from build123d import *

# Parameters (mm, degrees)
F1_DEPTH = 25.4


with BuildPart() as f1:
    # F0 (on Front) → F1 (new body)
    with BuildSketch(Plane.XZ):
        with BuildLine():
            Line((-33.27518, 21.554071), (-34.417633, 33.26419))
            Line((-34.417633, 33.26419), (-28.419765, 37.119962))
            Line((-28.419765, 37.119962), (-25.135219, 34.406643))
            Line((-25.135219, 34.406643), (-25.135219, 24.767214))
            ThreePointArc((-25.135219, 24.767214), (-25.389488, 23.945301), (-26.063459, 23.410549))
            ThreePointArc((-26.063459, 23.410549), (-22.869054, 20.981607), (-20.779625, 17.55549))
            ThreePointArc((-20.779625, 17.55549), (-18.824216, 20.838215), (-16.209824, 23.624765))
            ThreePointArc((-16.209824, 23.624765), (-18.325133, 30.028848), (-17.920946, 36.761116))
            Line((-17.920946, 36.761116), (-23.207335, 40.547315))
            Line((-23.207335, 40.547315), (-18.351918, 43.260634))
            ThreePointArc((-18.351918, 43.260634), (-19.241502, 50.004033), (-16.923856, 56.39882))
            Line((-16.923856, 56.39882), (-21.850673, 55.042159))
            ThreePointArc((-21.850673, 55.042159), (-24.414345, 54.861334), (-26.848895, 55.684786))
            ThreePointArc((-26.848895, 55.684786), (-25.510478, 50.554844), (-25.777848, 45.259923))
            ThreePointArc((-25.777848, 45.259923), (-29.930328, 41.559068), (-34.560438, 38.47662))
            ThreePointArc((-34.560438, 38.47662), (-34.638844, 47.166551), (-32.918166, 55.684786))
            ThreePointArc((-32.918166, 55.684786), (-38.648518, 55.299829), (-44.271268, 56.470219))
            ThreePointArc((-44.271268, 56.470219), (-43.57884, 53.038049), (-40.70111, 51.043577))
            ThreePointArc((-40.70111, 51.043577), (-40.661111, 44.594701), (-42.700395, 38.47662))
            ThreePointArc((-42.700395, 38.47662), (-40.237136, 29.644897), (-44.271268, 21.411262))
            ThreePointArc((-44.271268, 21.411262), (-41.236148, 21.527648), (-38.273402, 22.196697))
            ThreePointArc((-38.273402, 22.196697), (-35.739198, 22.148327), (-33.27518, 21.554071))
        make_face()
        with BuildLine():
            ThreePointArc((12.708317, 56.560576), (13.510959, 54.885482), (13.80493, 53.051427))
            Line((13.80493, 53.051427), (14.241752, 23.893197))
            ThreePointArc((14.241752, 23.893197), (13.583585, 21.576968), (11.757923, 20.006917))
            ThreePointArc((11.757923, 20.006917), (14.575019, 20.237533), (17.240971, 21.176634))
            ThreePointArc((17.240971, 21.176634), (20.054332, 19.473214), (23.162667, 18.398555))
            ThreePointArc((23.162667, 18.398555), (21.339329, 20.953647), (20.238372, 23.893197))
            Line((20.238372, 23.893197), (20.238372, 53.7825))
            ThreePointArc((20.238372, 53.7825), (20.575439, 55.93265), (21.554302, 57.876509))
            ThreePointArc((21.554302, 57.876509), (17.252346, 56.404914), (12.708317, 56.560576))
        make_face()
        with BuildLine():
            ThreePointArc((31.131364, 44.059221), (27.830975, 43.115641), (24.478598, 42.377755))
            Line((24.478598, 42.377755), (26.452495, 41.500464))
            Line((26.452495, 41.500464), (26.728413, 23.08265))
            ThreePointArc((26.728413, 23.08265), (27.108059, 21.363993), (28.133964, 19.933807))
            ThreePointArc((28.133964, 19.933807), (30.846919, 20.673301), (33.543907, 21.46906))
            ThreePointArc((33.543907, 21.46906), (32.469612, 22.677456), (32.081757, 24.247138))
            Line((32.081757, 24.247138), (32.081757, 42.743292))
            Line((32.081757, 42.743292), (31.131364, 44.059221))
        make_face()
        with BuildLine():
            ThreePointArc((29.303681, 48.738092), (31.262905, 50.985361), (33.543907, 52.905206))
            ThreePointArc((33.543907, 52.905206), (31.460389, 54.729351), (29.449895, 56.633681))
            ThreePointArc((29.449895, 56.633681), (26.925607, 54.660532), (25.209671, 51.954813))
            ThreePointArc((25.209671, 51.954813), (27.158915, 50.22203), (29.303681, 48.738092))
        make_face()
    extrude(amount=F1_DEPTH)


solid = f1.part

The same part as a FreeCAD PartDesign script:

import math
import FreeCAD as App
import Part
import Sketcher

V = App.Vector
Q = App.Units.Quantity

doc = App.newDocument("Part")
body = doc.addObject("PartDesign::Body", "Body")
body.AllowCompound = True

# Sketch on XZ plane
sketch1 = body.newObject("Sketcher::SketchObject", "Sketch")
sketch1.AttachmentSupport = (doc.getObject("XZ_Plane"), [""])
sketch1.MapMode = "FlatFace"
sketch1.addGeometry(Part.LineSegment(V(-33.3, 21.6, 0), V(-34.4, 33.3, 0)), False)
sketch1.addGeometry(Part.LineSegment(V(-34.4, 33.3, 0), V(-28.4, 37.1, 0)), False)
sketch1.addGeometry(Part.LineSegment(V(-28.4, 37.1, 0), V(-25.1, 34.4, 0)), False)
sketch1.addGeometry(Part.LineSegment(V(-25.1, 34.4, 0), V(-25.1, 24.8, 0)), False)
sketch1.addGeometry(Part.ArcOfCircle(Part.Circle(V(-26.6, 24.8, 0), V(0, 0, 1), 1.5), math.radians(-69), math.radians(0)), False)
sketch1.addGeometry(Part.ArcOfCircle(Part.Circle(V(-30.9, 13.7, 0), V(0, 0, 1), 10.8), math.radians(21), math.radians(63)), False)
sketch1.addGeometry(Part.ArcOfCircle(Part.Circle(V(-4.7, 10.2, 0), V(0, 0, 1), 17.7), math.radians(131), math.radians(155)), False)
sketch1.addGeometry(Part.ArcOfCircle(Part.Circle(V(-0.6, 32.3, 0), V(0, 0, 1), 17.9), math.radians(166), math.radians(209)), False)
sketch1.addGeometry(Part.LineSegment(V(-17.9, 36.8, 0), V(-23.2, 40.5, 0)), False)
sketch1.addGeometry(Part.LineSegment(V(-23.2, 40.5, 0), V(-18.4, 43.3, 0)), False)
sketch1.addGeometry(Part.ArcOfCircle(Part.Circle(V(-5, 48.5, 0), V(0, 0, 1), 14.3), math.radians(146), math.radians(201)), False)
sketch1.addGeometry(Part.LineSegment(V(-16.9, 56.4, 0), V(-21.9, 55, 0)), False)
sketch1.addGeometry(Part.ArcOfCircle(Part.Circle(V(-23.6, 61.3, 0), V(0, 0, 1), 6.5), math.radians(-120), math.radians(-75)), False)
sketch1.addGeometry(Part.ArcOfCircle(Part.Circle(V(-42.8, 48.8, 0), V(0, 0, 1), 17.4), math.radians(-12), math.radians(23)), False)
sketch1.addGeometry(Part.ArcOfCircle(Part.Circle(V(-54.1, 72.9, 0), V(0, 0, 1), 39.6), math.radians(-60.37), math.radians(-44.26)), False)
sketch1.addGeometry(Part.ArcOfCircle(Part.Circle(V(7, 43.2, 0), V(0, 0, 1), 41.8), math.radians(163), math.radians(186)), False)
sketch1.addGeometry(Part.ArcOfCircle(Part.Circle(V(-37.2, 76.4, 0), V(0, 0, 1), 21.2), math.radians(-110), math.radians(-78)), False)
sketch1.addGeometry(Part.ArcOfCircle(Part.Circle(V(-39.7, 55.6, 0), V(0, 0, 1), 4.7), math.radians(169), math.radians(257)), False)
sketch1.addGeometry(Part.ArcOfCircle(Part.Circle(V(-60.2, 47.7, 0), V(0, 0, 1), 19.8), math.radians(-28), math.radians(10)), False)
sketch1.addGeometry(Part.ArcOfCircle(Part.Circle(V(-53.1, 30.8, 0), V(0, 0, 1), 12.9), math.radians(-47), math.radians(36)), False)
sketch1.addGeometry(Part.ArcOfCircle(Part.Circle(V(-43.4, 37.9, 0), V(0, 0, 1), 16.6), math.radians(-93), math.radians(-72)), False)
sketch1.addGeometry(Part.ArcOfCircle(Part.Circle(V(-37.2, 10.6, 0), V(0, 0, 1), 11.7), math.radians(70), math.radians(95)), False)
sketch1.addGeometry(Part.ArcOfCircle(Part.Circle(V(7.3, 53, 0), V(0, 0, 1), 6.5), math.radians(1), math.radians(34)), False)
sketch1.addGeometry(Part.LineSegment(V(13.8, 53.1, 0), V(14.2, 23.9, 0)), False)
sketch1.addGeometry(Part.ArcOfCircle(Part.Circle(V(10.1, 23.8, 0), V(0, 0, 1), 4.2), math.radians(-66), math.radians(1)), False)
sketch1.addGeometry(Part.ArcOfCircle(Part.Circle(V(12.3, 31, 0), V(0, 0, 1), 11), math.radians(-93), math.radians(-63)), False)
sketch1.addGeometry(Part.ArcOfCircle(Part.Circle(V(26.7, 33.6, 0), V(0, 0, 1), 15.6), math.radians(-127), math.radians(-103)), False)
sketch1.addGeometry(Part.ArcOfCircle(Part.Circle(V(32, 26.6, 0), V(0, 0, 1), 12), math.radians(-167), math.radians(-137)), False)
sketch1.addGeometry(Part.LineSegment(V(20.2, 23.9, 0), V(20.2, 53.8, 0)), False)
sketch1.addGeometry(Part.ArcOfCircle(Part.Circle(V(27.3, 53.8, 0), V(0, 0, 1), 7), math.radians(144), math.radians(180)), False)
sketch1.addGeometry(Part.ArcOfCircle(Part.Circle(V(15.4, 68.8, 0), V(0, 0, 1), 12.6), math.radians(-102), math.radians(-61)), False)
sketch1.addGeometry(Part.ArcOfCircle(Part.Circle(V(14.2, 97, 0), V(0, 0, 1), 55.5), math.radians(-79.36), math.radians(-72.27)), False)
sketch1.addGeometry(Part.LineSegment(V(24.5, 42.4, 0), V(26.5, 41.5, 0)), False)
sketch1.addGeometry(Part.LineSegment(V(26.5, 41.5, 0), V(26.7, 23.1, 0)), False)
sketch1.addGeometry(Part.ArcOfCircle(Part.Circle(V(31.1, 23.1, 0), V(0, 0, 1), 4.4), math.radians(-179), math.radians(-133)), False)
sketch1.addGeometry(Part.ArcOfCircle(Part.Circle(V(-6.1, 150.7, 0), V(0, 0, 1), 135.2), math.radians(-75.35), math.radians(-72.97)), False)
sketch1.addGeometry(Part.ArcOfCircle(Part.Circle(V(35.5, 24.2, 0), V(0, 0, 1), 3.4), math.radians(180), math.radians(236)), False)
sketch1.addGeometry(Part.LineSegment(V(32.1, 24.2, 0), V(32.1, 42.7, 0)), False)
sketch1.addGeometry(Part.LineSegment(V(32.1, 42.7, 0), V(31.1, 44.1, 0)), False)
sketch1.addGeometry(Part.ArcOfCircle(Part.Circle(V(44.8, 37.2, 0), V(0, 0, 1), 19.4), math.radians(125.67), math.radians(143.33)), False)
sketch1.addGeometry(Part.ArcOfCircle(Part.Circle(V(79.1, 107, 0), V(0, 0, 1), 70.7), math.radians(-134.57), math.radians(-130.08)), False)
sketch1.addGeometry(Part.ArcOfCircle(Part.Circle(V(33.9, 48.3, 0), V(0, 0, 1), 9.4), math.radians(118), math.radians(157)), False)
sketch1.addGeometry(Part.ArcOfCircle(Part.Circle(V(40.4, 67.1, 0), V(0, 0, 1), 21.5), math.radians(-135.11), math.radians(-121.2)), False)
sketch1.addConstraint(Sketcher.Constraint("Coincident", 0, 2, 1, 1))
sketch1.addConstraint(Sketcher.Constraint("Coincident", 1, 2, 2, 1))
sketch1.addConstraint(Sketcher.Constraint("Coincident", 2, 2, 3, 1))
sketch1.addConstraint(Sketcher.Constraint("Tangent", 3, 2, 4, 2))
sketch1.addConstraint(Sketcher.Constraint("Coincident", 4, 1, 5, 2))
sketch1.addConstraint(Sketcher.Constraint("Coincident", 5, 1, 6, 2))
sketch1.addConstraint(Sketcher.Constraint("Coincident", 6, 1, 7, 2))
sketch1.addConstraint(Sketcher.Constraint("Coincident", 7, 1, 8, 1))
sketch1.addConstraint(Sketcher.Constraint("Coincident", 8, 2, 9, 1))
sketch1.addConstraint(Sketcher.Constraint("Coincident", 9, 2, 10, 2))
sketch1.addConstraint(Sketcher.Constraint("Coincident", 10, 1, 11, 1))
sketch1.addConstraint(Sketcher.Constraint("Tangent", 11, 2, 12, 2))
sketch1.addConstraint(Sketcher.Constraint("Coincident", 12, 1, 13, 2))
sketch1.addConstraint(Sketcher.Constraint("Coincident", 13, 1, 14, 2))
sketch1.addConstraint(Sketcher.Constraint("Coincident", 14, 1, 15, 2))
sketch1.addConstraint(Sketcher.Constraint("Coincident", 15, 1, 16, 2))
sketch1.addConstraint(Sketcher.Constraint("Coincident", 16, 1, 17, 1))
sketch1.addConstraint(Sketcher.Constraint("Coincident", 17, 2, 18, 2))
sketch1.addConstraint(Sketcher.Constraint("Coincident", 18, 1, 19, 2))
sketch1.addConstraint(Sketcher.Constraint("Coincident", 19, 1, 20, 1))
sketch1.addConstraint(Sketcher.Constraint("Coincident", 20, 2, 21, 2))
sketch1.addConstraint(Sketcher.Constraint("Coincident", 21, 1, 0, 1))
sketch1.addConstraint(Sketcher.Constraint("Tangent", 22, 1, 23, 1))
sketch1.addConstraint(Sketcher.Constraint("Tangent", 23, 2, 24, 2))
sketch1.addConstraint(Sketcher.Constraint("Coincident", 24, 1, 25, 1))
sketch1.addConstraint(Sketcher.Constraint("Coincident", 25, 2, 26, 1))
sketch1.addConstraint(Sketcher.Constraint("Coincident", 26, 2, 27, 2))
sketch1.addConstraint(Sketcher.Constraint("Coincident", 27, 1, 28, 1))
sketch1.addConstraint(Sketcher.Constraint("Tangent", 28, 2, 29, 2))
sketch1.addConstraint(Sketcher.Constraint("Coincident", 29, 1, 30, 2))
sketch1.addConstraint(Sketcher.Constraint("Coincident", 30, 1, 22, 2))
sketch1.addConstraint(Sketcher.Constraint("Coincident", 31, 1, 32, 1))
sketch1.addConstraint(Sketcher.Constraint("Coincident", 32, 2, 33, 1))
sketch1.addConstraint(Sketcher.Constraint("Tangent", 33, 2, 34, 1))
sketch1.addConstraint(Sketcher.Constraint("Coincident", 34, 2, 35, 1))
sketch1.addConstraint(Sketcher.Constraint("Coincident", 35, 2, 36, 2))
sketch1.addConstraint(Sketcher.Constraint("Tangent", 36, 1, 37, 1))
sketch1.addConstraint(Sketcher.Constraint("Coincident", 37, 2, 38, 1))
sketch1.addConstraint(Sketcher.Constraint("Coincident", 38, 2, 31, 2))
sketch1.addConstraint(Sketcher.Constraint("Coincident", 39, 1, 40, 2))
sketch1.addConstraint(Sketcher.Constraint("Coincident", 40, 1, 41, 1))
sketch1.addConstraint(Sketcher.Constraint("Coincident", 41, 2, 42, 1))
sketch1.addConstraint(Sketcher.Constraint("Coincident", 42, 2, 39, 2))
sketch1.addConstraint(Sketcher.Constraint("Vertical", 3))
sketch1.addConstraint(Sketcher.Constraint("Vertical", 28))
sketch1.addConstraint(Sketcher.Constraint("Vertical", 37))
sketch1.addConstraint(Sketcher.Constraint("Parallel", 23, 33))
sketch1.addConstraint(Sketcher.Constraint("Horizontal", 12, 1, 15, 1))
sketch1.addConstraint(Sketcher.Constraint("Horizontal", 14, 1, 18, 1))
sketch1.addConstraint(Sketcher.Constraint("Horizontal", 23, 2, 27, 1))
sketch1.addConstraint(Sketcher.Constraint("Vertical", 16, 1, 19, 1))
sketch1.addConstraint(Sketcher.Constraint("Vertical", 35, 2, 39, 1))
sketch1.addConstraint(Sketcher.Constraint("Radius", 16, 21.156999))
sketch1.addConstraint(Sketcher.Constraint("Radius", 35, 135.192702))
sketch1.addConstraint(Sketcher.Constraint("Radius", 42, 21.493698))
sketch1.addConstraint(Sketcher.Constraint("Distance", 8, Q("0.256 in")))
sketch1.addConstraint(Sketcher.Constraint("Radius", 7, 17.90269))
sketch1.addConstraint(Sketcher.Constraint("Radius", 22, 6.47397))
sketch1.addConstraint(Sketcher.Constraint("Radius", 24, 4.184609))
sketch1.addConstraint(Sketcher.Constraint("Radius", 25, 11.028308))
sketch1.addConstraint(Sketcher.Constraint("Radius", 27, 12.040642))
sketch1.addConstraint(Sketcher.Constraint("Radius", 30, 12.56557))
sketch1.addConstraint(Sketcher.Constraint("Radius", 34, 4.377321))
sketch1.addConstraint(Sketcher.Constraint("Radius", 36, 3.37024))
sketch1.addConstraint(Sketcher.Constraint("Radius", 4, 1.455535))
sketch1.addConstraint(Sketcher.Constraint("Radius", 5, 10.819675))
sketch1.addConstraint(Sketcher.Constraint("Radius", 6, 17.699156))
sketch1.addConstraint(Sketcher.Constraint("Radius", 10, 14.340687))
sketch1.addConstraint(Sketcher.Constraint("Radius", 12, 6.523283))
sketch1.addConstraint(Sketcher.Constraint("Radius", 13, 17.412327))
sketch1.addConstraint(Sketcher.Constraint("Radius", 14, 39.595762))
sketch1.addConstraint(Sketcher.Constraint("Radius", 15, 41.787636))
sketch1.addConstraint(Sketcher.Constraint("Radius", 17, 4.686577))
sketch1.addConstraint(Sketcher.Constraint("Radius", 18, 19.753477))
sketch1.addConstraint(Sketcher.Constraint("Radius", 19, 12.884103))
sketch1.addConstraint(Sketcher.Constraint("Radius", 20, 16.551484))
sketch1.addConstraint(Sketcher.Constraint("Radius", 21, 11.672904))
sketch1.addConstraint(Sketcher.Constraint("Radius", 26, 15.574395))
sketch1.addConstraint(Sketcher.Constraint("Radius", 29, 7.026426))
sketch1.addConstraint(Sketcher.Constraint("Radius", 31, 55.537284))
sketch1.addConstraint(Sketcher.Constraint("Radius", 39, 19.362466))
sketch1.addConstraint(Sketcher.Constraint("Radius", 40, 70.708304))
sketch1.addConstraint(Sketcher.Constraint("Radius", 41, 9.409867))
sketch1.addConstraint(Sketcher.Constraint("Distance", 23, 29.161502))
sketch1.addConstraint(Sketcher.Constraint("DistanceY", 3, 2, 3, 1, 9.639429))
sketch1.addConstraint(Sketcher.Constraint("DistanceY", -1, 1, 14, 3, 72.8962))
sketch1.addConstraint(Sketcher.Constraint("DistanceX", 19, 3, -1, 1, 53.066998))
sketch1.addConstraint(Sketcher.Constraint("DistanceY", -1, 1, 26, 3, 33.573098))
sketch1.addConstraint(Sketcher.Constraint("DistanceY", -1, 1, 29, 3, 53.782502))
sketch1.addConstraint(Sketcher.Constraint("DistanceY", -1, 1, 40, 3, 107.006998))
sketch1.addConstraint(Sketcher.Constraint("DistanceX", 20, 2, -1, 1, 38.273402))
sketch1.addConstraint(Sketcher.Constraint("DistanceX", -1, 1, 31, 1, 24.478598))
sketch1.addConstraint(Sketcher.Constraint("Distance", 2, 4.260322))
sketch1.addConstraint(Sketcher.Constraint("Distance", 9, 5.56212))
sketch1.addConstraint(Sketcher.Constraint("Distance", 11, 5.110191))
sketch1.addConstraint(Sketcher.Constraint("Distance", 32, 2.160071))
sketch1.addConstraint(Sketcher.Constraint("Distance", 33, 18.419881))
sketch1.addConstraint(Sketcher.Constraint("DistanceY", 28, 1, 28, 2, 29.889303))
sketch1.addConstraint(Sketcher.Constraint("DistanceY", 37, 1, 37, 2, 18.496154))
sketch1.addConstraint(Sketcher.Constraint("DistanceY", -1, 1, 5, 3, 13.732808))
sketch1.addConstraint(Sketcher.Constraint("DistanceX", 6, 3, -1, 1, 4.684871))
sketch1.addConstraint(Sketcher.Constraint("DistanceY", -1, 1, 7, 3, 32.341291))
sketch1.addConstraint(Sketcher.Constraint("DistanceY", -1, 1, 10, 3, 48.454392))
sketch1.addConstraint(Sketcher.Constraint("DistanceY", -1, 1, 12, 3, 61.33136))
sketch1.addConstraint(Sketcher.Constraint("DistanceX", 13, 3, -1, 1, 42.831629))
sketch1.addConstraint(Sketcher.Constraint("DistanceX", 14, 3, -1, 1, 54.13381))
sketch1.addConstraint(Sketcher.Constraint("DistanceY", -1, 1, 15, 3, 43.196561))
sketch1.addConstraint(Sketcher.Constraint("DistanceX", 16, 3, -1, 1, 37.18832))
sketch1.addConstraint(Sketcher.Constraint("DistanceY", -1, 1, 16, 3, 76.406378))
sketch1.addConstraint(Sketcher.Constraint("DistanceY", -1, 1, 17, 3, 55.613869))
sketch1.addConstraint(Sketcher.Constraint("DistanceY", -1, 1, 19, 3, 30.825891))
sketch1.addConstraint(Sketcher.Constraint("DistanceX", 21, 3, -1, 1, 37.227742))
sketch1.addConstraint(Sketcher.Constraint("DistanceY", -1, 1, 22, 3, 52.954452))
sketch1.addConstraint(Sketcher.Constraint("DistanceX", -1, 1, 25, 3, 12.274089))
sketch1.addConstraint(Sketcher.Constraint("DistanceY", -1, 1, 25, 3, 31.02314))
sketch1.addConstraint(Sketcher.Constraint("DistanceX", -1, 1, 26, 3, 26.669091))
sketch1.addConstraint(Sketcher.Constraint("DistanceY", -1, 1, 27, 3, 26.610521))
sketch1.addConstraint(Sketcher.Constraint("DistanceX", -1, 1, 30, 3, 15.403431))
sketch1.addConstraint(Sketcher.Constraint("DistanceY", -1, 1, 31, 3, 96.95974))
sketch1.addConstraint(Sketcher.Constraint("DistanceY", -1, 1, 34, 3, 23.148218))
sketch1.addConstraint(Sketcher.Constraint("DistanceX", -1, 1, 39, 3, 44.83466))
sketch1.addConstraint(Sketcher.Constraint("DistanceY", -1, 1, 39, 3, 37.175489))
sketch1.addConstraint(Sketcher.Constraint("DistanceY", -1, 1, 42, 3, 67.122921))
sketch1.addConstraint(Sketcher.Constraint("DistanceY", -1, 1, 0, 2, 33.26419))
sketch1.addConstraint(Sketcher.Constraint("DistanceX", 2, 2, -1, 1, 25.135219))
sketch1.addConstraint(Sketcher.Constraint("DistanceX", 4, 1, -1, 1, 26.063459))
sketch1.addConstraint(Sketcher.Constraint("DistanceY", -1, 1, 4, 1, 23.410549))
sketch1.addConstraint(Sketcher.Constraint("DistanceY", -1, 1, 5, 1, 17.55549))
sketch1.addConstraint(Sketcher.Constraint("DistanceX", 9, 2, -1, 1, 18.351918))
sketch1.addConstraint(Sketcher.Constraint("DistanceY", -1, 1, 10, 1, 56.39882))
sketch1.addConstraint(Sketcher.Constraint("DistanceY", -1, 1, 14, 1, 38.47662))
sketch1.addConstraint(Sketcher.Constraint("DistanceX", 16, 1, -1, 1, 44.271268))
sketch1.addConstraint(Sketcher.Constraint("DistanceX", 17, 2, -1, 1, 40.70111))
sketch1.addConstraint(Sketcher.Constraint("DistanceX", 21, 1, -1, 1, 33.27518))
sketch1.addConstraint(Sketcher.Constraint("DistanceY", -1, 1, 21, 1, 21.554071))
sketch1.addConstraint(Sketcher.Constraint("DistanceX", -1, 1, 22, 1, 13.80493))
sketch1.addConstraint(Sketcher.Constraint("DistanceX", -1, 1, 27, 1, 20.238372))
sketch1.addConstraint(Sketcher.Constraint("DistanceY", -1, 1, 29, 1, 57.876509))
sketch1.addConstraint(Sketcher.Constraint("DistanceY", -1, 1, 35, 2, 21.46906))
sketch1.addConstraint(Sketcher.Constraint("DistanceY", -1, 1, 37, 2, 42.743292))
sketch1.addConstraint(Sketcher.Constraint("DistanceY", -1, 1, 38, 2, 44.059221))
sketch1.addConstraint(Sketcher.Constraint("DistanceY", -1, 1, 40, 1, 56.633681))
sketch1.addConstraint(Sketcher.Constraint("DistanceX", -1, 1, 41, 2, 25.209671))
sketch1.addConstraint(Sketcher.Constraint("DistanceX", -1, 1, 42, 2, 29.303681))
sketch1.addConstraint(Sketcher.Constraint("Distance", 0, 11.765717))
sketch1.addConstraint(Sketcher.Constraint("Distance", 1, 7.130315))
sketch1.addConstraint(Sketcher.Constraint("Distance", 38, 1.623242))
sketch1.addConstraint(Sketcher.Constraint("DistanceX", 7, 3, -1, 1, 0.572417))
sketch1.addConstraint(Sketcher.Constraint("DistanceX", 10, 3, -1, 1, 4.984787))
sketch1.addConstraint(Sketcher.Constraint("DistanceX", -1, 1, 31, 3, 14.222046))
sketch1.addConstraint(Sketcher.Constraint("DistanceX", 35, 3, -1, 1, 6.061163))
sketch1.addConstraint(Sketcher.Constraint("DistanceX", 7, 1, -1, 1, 17.920946))
pad1 = body.newObject("PartDesign::Pad", "Pad")
pad1.Profile = sketch1
pad1.Length = Q("1 in")

doc.recompute()
